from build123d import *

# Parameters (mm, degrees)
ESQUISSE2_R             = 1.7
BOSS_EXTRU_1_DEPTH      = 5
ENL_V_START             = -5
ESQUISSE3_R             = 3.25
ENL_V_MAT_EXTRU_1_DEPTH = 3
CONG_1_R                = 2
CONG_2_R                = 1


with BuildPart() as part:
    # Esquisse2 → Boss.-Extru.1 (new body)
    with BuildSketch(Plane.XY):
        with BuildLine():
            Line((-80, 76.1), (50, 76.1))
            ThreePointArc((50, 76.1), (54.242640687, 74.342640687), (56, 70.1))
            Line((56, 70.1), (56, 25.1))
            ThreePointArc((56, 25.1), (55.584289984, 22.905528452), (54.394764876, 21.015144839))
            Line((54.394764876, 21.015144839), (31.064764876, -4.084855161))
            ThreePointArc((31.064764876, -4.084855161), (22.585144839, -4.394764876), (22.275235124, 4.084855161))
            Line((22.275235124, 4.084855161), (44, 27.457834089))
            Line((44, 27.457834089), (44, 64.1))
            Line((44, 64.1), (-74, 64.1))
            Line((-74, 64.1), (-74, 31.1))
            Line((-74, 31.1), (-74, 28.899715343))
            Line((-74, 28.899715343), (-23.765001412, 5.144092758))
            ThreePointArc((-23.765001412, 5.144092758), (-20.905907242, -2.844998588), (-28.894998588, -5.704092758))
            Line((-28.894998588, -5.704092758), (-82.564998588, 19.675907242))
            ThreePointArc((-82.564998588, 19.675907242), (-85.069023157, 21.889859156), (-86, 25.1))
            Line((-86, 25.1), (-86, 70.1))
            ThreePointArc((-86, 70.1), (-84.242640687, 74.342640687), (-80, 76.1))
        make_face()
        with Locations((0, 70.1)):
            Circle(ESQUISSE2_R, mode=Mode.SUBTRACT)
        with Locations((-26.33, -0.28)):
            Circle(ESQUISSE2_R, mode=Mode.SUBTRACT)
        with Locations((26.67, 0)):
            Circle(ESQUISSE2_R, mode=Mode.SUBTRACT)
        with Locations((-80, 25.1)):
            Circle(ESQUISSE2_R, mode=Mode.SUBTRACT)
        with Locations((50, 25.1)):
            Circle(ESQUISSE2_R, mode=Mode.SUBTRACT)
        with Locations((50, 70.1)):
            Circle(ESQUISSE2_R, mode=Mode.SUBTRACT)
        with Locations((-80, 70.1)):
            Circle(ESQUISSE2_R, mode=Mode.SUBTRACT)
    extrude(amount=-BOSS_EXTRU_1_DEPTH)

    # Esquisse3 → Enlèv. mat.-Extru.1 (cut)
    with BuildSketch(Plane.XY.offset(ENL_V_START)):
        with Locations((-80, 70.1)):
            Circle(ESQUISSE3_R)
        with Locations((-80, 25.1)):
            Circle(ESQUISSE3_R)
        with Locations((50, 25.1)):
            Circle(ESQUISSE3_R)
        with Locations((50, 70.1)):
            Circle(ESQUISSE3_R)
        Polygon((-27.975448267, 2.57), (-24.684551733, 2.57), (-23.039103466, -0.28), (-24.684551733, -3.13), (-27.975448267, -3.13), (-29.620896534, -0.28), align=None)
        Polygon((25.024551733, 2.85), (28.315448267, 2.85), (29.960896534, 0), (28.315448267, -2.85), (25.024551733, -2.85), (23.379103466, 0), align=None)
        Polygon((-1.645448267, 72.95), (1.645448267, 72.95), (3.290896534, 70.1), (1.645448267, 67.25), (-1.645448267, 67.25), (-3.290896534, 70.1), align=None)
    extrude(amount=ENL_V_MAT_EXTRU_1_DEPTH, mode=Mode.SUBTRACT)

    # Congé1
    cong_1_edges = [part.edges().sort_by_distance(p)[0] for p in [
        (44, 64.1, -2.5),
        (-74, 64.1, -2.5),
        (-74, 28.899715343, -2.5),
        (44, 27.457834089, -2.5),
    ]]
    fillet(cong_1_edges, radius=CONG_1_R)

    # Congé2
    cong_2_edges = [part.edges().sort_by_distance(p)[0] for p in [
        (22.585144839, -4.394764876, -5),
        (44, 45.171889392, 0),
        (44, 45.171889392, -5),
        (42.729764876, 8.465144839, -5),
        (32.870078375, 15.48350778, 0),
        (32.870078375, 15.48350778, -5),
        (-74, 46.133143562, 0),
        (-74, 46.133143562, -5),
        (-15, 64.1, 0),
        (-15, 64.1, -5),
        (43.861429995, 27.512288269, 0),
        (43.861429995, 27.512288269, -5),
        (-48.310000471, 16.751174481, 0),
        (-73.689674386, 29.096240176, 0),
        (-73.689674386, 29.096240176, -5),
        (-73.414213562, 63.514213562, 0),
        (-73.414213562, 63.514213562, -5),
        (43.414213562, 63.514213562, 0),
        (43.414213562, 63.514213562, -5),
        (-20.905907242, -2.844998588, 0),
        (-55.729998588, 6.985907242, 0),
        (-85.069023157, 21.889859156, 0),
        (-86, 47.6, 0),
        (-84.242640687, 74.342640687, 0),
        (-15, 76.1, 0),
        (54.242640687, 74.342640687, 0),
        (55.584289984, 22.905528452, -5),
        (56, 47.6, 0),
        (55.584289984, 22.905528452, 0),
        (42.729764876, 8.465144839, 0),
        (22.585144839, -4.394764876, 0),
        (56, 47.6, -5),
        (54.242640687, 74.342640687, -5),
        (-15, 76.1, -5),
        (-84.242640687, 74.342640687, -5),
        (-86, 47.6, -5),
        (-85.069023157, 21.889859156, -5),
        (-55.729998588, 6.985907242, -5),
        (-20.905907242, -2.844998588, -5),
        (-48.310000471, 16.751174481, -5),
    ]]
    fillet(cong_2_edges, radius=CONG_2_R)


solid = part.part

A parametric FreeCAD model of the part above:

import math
import FreeCAD as App
import Part
import Sketcher
Q = App.Units.Quantity


def edges_at(feature, points):
    """Names of the edges that pass closest to the given points."""
    edges = feature.Shape.Edges
    near = lambda p: min(range(len(edges)), key=lambda i: edges[i].distToShape(Part.Vertex(*p))[0])
    return sorted({f"Edge{near(p) + 1}" for p in points})


def add_polygon(sketch, points):
    """Adds a closed chain of lines whose ends are joined by coincident constraints."""
    first, n = sketch.GeometryCount, len(points)
    for a, b in zip(points, points[1:] + points[:1]):
        sketch.addGeometry(Part.LineSegment(App.Vector(*a, 0), App.Vector(*b, 0)), False)
    for i in range(n):
        sketch.addConstraint(Sketcher.Constraint("Coincident", first + i, 2, first + (i + 1) % n, 1))

doc = App.newDocument("Part")
body = doc.addObject("PartDesign::Body", "Body")

# Sketch on XY plane
sketch1 = body.newObject("Sketcher::SketchObject", "Sketch")
sketch1.AttachmentSupport = (doc.getObject("XY_Plane"), [""])
sketch1.MapMode = "FlatFace"
sketch1.addGeometry([
    Part.LineSegment(App.Vector(50, 76.1, 0), App.Vector(-80, 76.1, 0)),  # 0
    Part.ArcOfCircle(Part.Circle(App.Vector(-80, 70.1, 0), App.Vector(0, 0, 1), 6), math.radians(90), math.radians(180)),  # 1
    Part.LineSegment(App.Vector(-86, 70.1, 0), App.Vector(-86, 25.1, 0)),  # 2
    Part.ArcOfCircle(Part.Circle(App.Vector(-80, 25.1, 0), App.Vector(0, 0, 1), 6), math.radians(180), math.radians(244.691007)),  # 3
    Part.LineSegment(App.Vector(-82.564999, 19.675907, 0), App.Vector(-28.894999, -5.704093, 0)),  # 4
    Part.ArcOfCircle(Part.Circle(App.Vector(-26.33, -0.28, 0), App.Vector(0, 0, 1), 6), math.radians(-115.308993), math.radians(64.691007)),  # 5
    Part.LineSegment(App.Vector(-23.765001, 5.144093, 0), App.Vector(-74, 28.899715, 0)),  # 6
    Part.LineSegment(App.Vector(-74, 28.899715, 0), App.Vector(-74, 64.1, 0)),  # 7
    Part.LineSegment(App.Vector(-74, 64.1, 0), App.Vector(44, 64.1, 0)),  # 8
    Part.LineSegment(App.Vector(44, 64.1, 0), App.Vector(44, 27.457834, 0)),  # 9
    Part.LineSegment(App.Vector(44, 27.457834, 0), App.Vector(22.275235, 4.084855, 0)),  # 10
    Part.ArcOfCircle(Part.Circle(App.Vector(26.67, 0, 0), App.Vector(0, 0, 1), 6), math.radians(137.093091), math.radians(317.093091)),  # 11
    Part.LineSegment(App.Vector(31.064765, -4.084855, 0), App.Vector(54.394765, 21.015145, 0)),  # 12
    Part.ArcOfCircle(Part.Circle(App.Vector(50, 25.1, 0), App.Vector(0, 0, 1), 6), math.radians(-42.906909), math.radians(0)),  # 13
    Part.LineSegment(App.Vector(56, 25.1, 0), App.Vector(56, 70.1, 0)),  # 14
    Part.ArcOfCircle(Part.Circle(App.Vector(50, 70.1, 0), App.Vector(0, 0, 1), 6), math.radians(0), math.radians(90)),  # 15
    Part.Circle(App.Vector(26.67, 0, 0), App.Vector(0, 0, 1), 1.7),  # 16
    Part.Circle(App.Vector(50, 25.1, 0), App.Vector(0, 0, 1), 1.7),  # 17
    Part.Circle(App.Vector(-26.33, -0.28, 0), App.Vector(0, 0, 1), 1.7),  # 18
    Part.Circle(App.Vector(-80, 25.1, 0), App.Vector(0, 0, 1), 1.7),  # 19
    Part.Circle(App.Vector(50, 70.1, 0), App.Vector(0, 0, 1), 1.7),  # 20
    Part.Circle(App.Vector(0, 70.1, 0), App.Vector(0, 0, 1), 1.7),  # 21
    Part.Circle(App.Vector(-80, 70.1, 0), App.Vector(0, 0, 1), 1.7),  # 22
], False)
sketch1.addConstraint([
    Sketcher.Constraint("Tangent", 0, 2, 1, 1),
    Sketcher.Constraint("Tangent", 1, 2, 2, 1),
    Sketcher.Constraint("Tangent", 2, 2, 3, 1),
    Sketcher.Constraint("Tangent", 3, 2, 4, 1),
    Sketcher.Constraint("Tangent", 4, 2, 5, 1),
    Sketcher.Constraint("Tangent", 5, 2, 6, 1),
    Sketcher.Constraint("Coincident", 6, 2, 7, 1),
    Sketcher.Constraint("Coincident", 7, 2, 8, 1),
    Sketcher.Constraint("Coincident", 8, 2, 9, 1),
    Sketcher.Constraint("Coincident", 9, 2, 10, 1),
    Sketcher.Constraint("Tangent", 10, 2, 11, 1),
    Sketcher.Constraint("Tangent", 11, 2, 12, 1),
    Sketcher.Constraint("Tangent", 12, 2, 13, 1),
    Sketcher.Constraint("Tangent", 13, 2, 14, 1),
    Sketcher.Constraint("Tangent", 14, 2, 15, 1),
    Sketcher.Constraint("Tangent", 15, 2, 0, 1),
    Sketcher.Constraint("Horizontal", 0),
    Sketcher.Constraint("Vertical", 2),
    Sketcher.Constraint("Vertical", 7),
    Sketcher.Constraint("Horizontal", 8),
    Sketcher.Constraint("Vertical", 9),
    Sketcher.Constraint("Vertical", 14),
    Sketcher.Constraint("Coincident", 16, 3, 11, 3),
    Sketcher.Constraint("Coincident", 17, 3, 13, 3),
    Sketcher.Constraint("Coincident", 18, 3, 5, 3),
    Sketcher.Constraint("Coincident", 19, 3, 3, 3),
    Sketcher.Constraint("Coincident", 20, 3, 15, 3),
    Sketcher.Constraint("Coincident", 22, 3, 1, 3),
    Sketcher.Constraint("Equal", 1, 3),
    Sketcher.Constraint("Equal", 3, 5),
    Sketcher.Constraint("Equal", 5, 11),
    Sketcher.Constraint("Equal", 11, 13),
    Sketcher.Constraint("Equal", 13, 15),
    Sketcher.Constraint("Equal", 16, 17),
    Sketcher.Constraint("Equal", 17, 18),
    Sketcher.Constraint("Equal", 18, 19),
    Sketcher.Constraint("Equal", 19, 20),
    Sketcher.Constraint("Equal", 20, 21),
    Sketcher.Constraint("Equal", 21, 22),
    Sketcher.Constraint("PointOnObject", 11, 3, -1),
    Sketcher.Constraint("PointOnObject", 21, 3, -2),
    Sketcher.Constraint("Parallel", 4, 6),
    Sketcher.Constraint("Parallel", 10, 12),
    Sketcher.Constraint("Horizontal", 3, 3, 13, 3),
    Sketcher.Constraint("Horizontal", 20, 3, 21, 3),
    Sketcher.Constraint("Radius", 1, Q("6 mm")),
    Sketcher.Constraint("Diameter", 16, Q("3.4 mm")),
    Sketcher.Constraint("DistanceX", 0, 2, 0, 1, Q("130 mm")),
    Sketcher.Constraint("DistanceX", 8, 1, 8, 2, Q("118 mm")),
    Sketcher.Constraint("DistanceY", 2, 2, 2, 1, Q("45 mm")),
    Sketcher.Constraint("DistanceX", 1, 3, -1, 1, Q("80 mm")),
    Sketcher.Constraint("DistanceX", 6, 2, -1, 1, Q("74 mm")),
    Sketcher.Constraint("DistanceX", 5, 3, 11, 3, Q("53 mm")),
    Sketcher.Constraint("DistanceY", 7, 2, 1, 3, Q("6 mm")),
    Sketcher.Constraint("DistanceY", -1, 1, 1, 3, Q("70.1 mm")),
    Sketcher.Constraint("DistanceX", 5, 3, -1, 1, Q("26.33 mm")),
    Sketcher.Constraint("DistanceY", 5, 3, -1, 1, Q("0.28 mm")),
])
pad1 = body.newObject("PartDesign::Pad", "Pad")
pad1.Profile = sketch1
pad1.Length = 5
pad1.Reversed = True

# Sketch on XY plane
sketch2 = body.newObject("Sketcher::SketchObject", "Sketch001")
sketch2.AttachmentSupport = (doc.getObject("XY_Plane"), [""])
sketch2.MapMode = "FlatFace"
sketch2.AttachmentOffset = App.Placement(App.Vector(0, 0, -5), App.Rotation())
sketch2.addGeometry(Part.Circle(App.Vector(-80, 70.1, 0), App.Vector(0, 0, 1), 3.25), False)  # 0
sketch2.addGeometry(Part.Circle(App.Vector(-80, 25.1, 0), App.Vector(0, 0, 1), 3.25), False)  # 1
sketch2.addGeometry(Part.Circle(App.Vector(50, 25.1, 0), App.Vector(0, 0, 1), 3.25), False)  # 2
sketch2.addGeometry(Part.Circle(App.Vector(50, 70.1, 0), App.Vector(0, 0, 1), 3.25), False)  # 3
add_polygon(sketch2, [(-24.684552, 2.57), (-27.975448, 2.57), (-29.620897, -0.28), (-27.975448, -3.13), (-24.684552, -3.13), (-23.039103, -0.28)])  # lines 4-9
add_polygon(sketch2, [(28.315448, 2.85), (25.024552, 2.85), (23.379103, 0), (25.024552, -2.85), (28.315448, -2.85), (29.960897, 0)])  # lines 10-15
add_polygon(sketch2, [(1.645448, 72.95), (-1.645448, 72.95), (-3.290897, 70.1), (-1.645448, 67.25), (1.645448, 67.25), (3.290897, 70.1)])  # lines 16-21
sketch2.addConstraint([
    Sketcher.Constraint("Horizontal", 4),
    Sketcher.Constraint("Horizontal", 7),
    Sketcher.Constraint("Horizontal", 10),
    Sketcher.Constraint("Horizontal", 13),
    Sketcher.Constraint("Horizontal", 16),
    Sketcher.Constraint("Horizontal", 19),
    Sketcher.Constraint("Equal", 0, 1),
    Sketcher.Constraint("Equal", 1, 2),
    Sketcher.Constraint("Equal", 2, 3),
    Sketcher.Constraint("Symmetric", 17, 2, 20, 2, -2),
    Sketcher.Constraint("Symmetric", 10, 2, 12, 2, -1),
    Sketcher.Constraint("PointOnObject", 11, 2, -1),
    Sketcher.Constraint("PointOnObject", 14, 2, -1),
    Sketcher.Constraint("Parallel", 5, 8),
    Sketcher.Constraint("Parallel", 6, 9),
    Sketcher.Constraint("Parallel", 8, 11),
    Sketcher.Constraint("Parallel", 9, 12),
    Sketcher.Constraint("Parallel", 11, 14),
    Sketcher.Constraint("Parallel", 12, 15),
    Sketcher.Constraint("Parallel", 14, 17),
    Sketcher.Constraint("Parallel", 15, 18),
    Sketcher.Constraint("Parallel", 17, 20),
    Sketcher.Constraint("Parallel", 18, 21),
    Sketcher.Constraint("Horizontal", 1, 3, 2, 3),
    Sketcher.Constraint("Horizontal", 0, 3, 3, 3),
    Sketcher.Constraint("Horizontal", 5, 2, 8, 2),
    Sketcher.Constraint("Horizontal", 3, 3, 17, 2),
    Sketcher.Constraint("Vertical", 0, 3, 1, 3),
    Sketcher.Constraint("Vertical", 2, 3, 3, 3),
    Sketcher.Constraint("Vertical", 4, 2, 6, 2),
    Sketcher.Constraint("Vertical", 16, 2, 18, 2),
    Sketcher.Constraint("Equal", 7, 10),
    Sketcher.Constraint("Equal", 13, 16),
    Sketcher.Constraint("Equal", 9, 11),
    Sketcher.Constraint("Equal", 15, 17),
    Sketcher.Constraint("Diameter", 0, Q("6.5 mm")),
    Sketcher.Constraint("Angle", 5, Q("-120 deg")),
    Sketcher.Constraint("DistanceX", 0, 3, -1, 1, Q("80 mm")),
    Sketcher.Constraint("DistanceX", -1, 1, 2, 3, Q("50 mm")),
    Sketcher.Constraint("DistanceY", 1, 3, 0, 3, Q("45 mm")),
    Sketcher.Constraint("DistanceX", 4, 2, 10, 2, Q("53 mm")),
    Sketcher.Constraint("DistanceY", -1, 1, 0, 3, Q("70.1 mm")),
    Sketcher.Constraint("DistanceY", 6, 2, 4, 2, Q("5.7 mm")),
    Sketcher.Constraint("DistanceY", -1, 1, 4, 2, Q("2.57 mm")),
    Sketcher.Constraint("DistanceX", 16, 2, 10, 2, Q("26.67 mm")),
    Sketcher.Constraint("DistanceX", 4, 2, 4, 1, Q("3.290897 mm")),
])
pocket1 = body.newObject("PartDesign::Pocket", "Pocket")
pocket1.Profile = sketch2
pocket1.Length = 3
pocket1.Reversed = True
doc.recompute()

fillet = body.newObject("PartDesign::Fillet", "Fillet")
fillet.Base = (pocket1, edges_at(pocket1, [
    (44, 64.1, -2.5),
    (-74, 64.1, -2.5),
    (-74, 28.9, -2.5),
    (44, 27.458, -2.5),
]))
fillet.Radius = 2
doc.recompute()

fillet2 = body.newObject("PartDesign::Fillet", "Fillet001")
fillet2.Base = (fillet, edges_at(fillet, [
    (22.585, -4.395, -5),
    (44, 45.172, 0),
    (44, 45.172, -5),
    (42.73, 8.465, -5),
    (32.87, 15.484, 0),
    (32.87, 15.484, -5),
    (-74, 46.133, 0),
    (-74, 46.133, -5),
    (-15, 64.1, 0),
    (-15, 64.1, -5),
    (43.861, 27.512, 0),
    (43.861, 27.512, -5),
    (-48.31, 16.751, 0),
    (-73.69, 29.096, 0),
    (-73.69, 29.096, -5),
    (-73.414, 63.514, 0),
    (-73.414, 63.514, -5),
    (43.414, 63.514, 0),
    (43.414, 63.514, -5),
    (-20.906, -2.845, 0),
    (-55.73, 6.986, 0),
    (-85.069, 21.89, 0),
    (-86, 47.6, 0),
    (-84.243, 74.343, 0),
    (-15, 76.1, 0),
    (54.243, 74.343, 0),
    (55.584, 22.906, -5),
    (56, 47.6, 0),
    (55.584, 22.906, 0),
    (42.73, 8.465, 0),
    (22.585, -4.395, 0),
    (56, 47.6, -5),
    (54.243, 74.343, -5),
    (-15, 76.1, -5),
    (-84.243, 74.343, -5),
    (-86, 47.6, -5),
    (-85.069, 21.89, -5),
    (-55.73, 6.986, -5),
    (-20.906, -2.845, -5),
    (-48.31, 16.751, -5),
]))
fillet2.Radius = 1

doc.recompute()
